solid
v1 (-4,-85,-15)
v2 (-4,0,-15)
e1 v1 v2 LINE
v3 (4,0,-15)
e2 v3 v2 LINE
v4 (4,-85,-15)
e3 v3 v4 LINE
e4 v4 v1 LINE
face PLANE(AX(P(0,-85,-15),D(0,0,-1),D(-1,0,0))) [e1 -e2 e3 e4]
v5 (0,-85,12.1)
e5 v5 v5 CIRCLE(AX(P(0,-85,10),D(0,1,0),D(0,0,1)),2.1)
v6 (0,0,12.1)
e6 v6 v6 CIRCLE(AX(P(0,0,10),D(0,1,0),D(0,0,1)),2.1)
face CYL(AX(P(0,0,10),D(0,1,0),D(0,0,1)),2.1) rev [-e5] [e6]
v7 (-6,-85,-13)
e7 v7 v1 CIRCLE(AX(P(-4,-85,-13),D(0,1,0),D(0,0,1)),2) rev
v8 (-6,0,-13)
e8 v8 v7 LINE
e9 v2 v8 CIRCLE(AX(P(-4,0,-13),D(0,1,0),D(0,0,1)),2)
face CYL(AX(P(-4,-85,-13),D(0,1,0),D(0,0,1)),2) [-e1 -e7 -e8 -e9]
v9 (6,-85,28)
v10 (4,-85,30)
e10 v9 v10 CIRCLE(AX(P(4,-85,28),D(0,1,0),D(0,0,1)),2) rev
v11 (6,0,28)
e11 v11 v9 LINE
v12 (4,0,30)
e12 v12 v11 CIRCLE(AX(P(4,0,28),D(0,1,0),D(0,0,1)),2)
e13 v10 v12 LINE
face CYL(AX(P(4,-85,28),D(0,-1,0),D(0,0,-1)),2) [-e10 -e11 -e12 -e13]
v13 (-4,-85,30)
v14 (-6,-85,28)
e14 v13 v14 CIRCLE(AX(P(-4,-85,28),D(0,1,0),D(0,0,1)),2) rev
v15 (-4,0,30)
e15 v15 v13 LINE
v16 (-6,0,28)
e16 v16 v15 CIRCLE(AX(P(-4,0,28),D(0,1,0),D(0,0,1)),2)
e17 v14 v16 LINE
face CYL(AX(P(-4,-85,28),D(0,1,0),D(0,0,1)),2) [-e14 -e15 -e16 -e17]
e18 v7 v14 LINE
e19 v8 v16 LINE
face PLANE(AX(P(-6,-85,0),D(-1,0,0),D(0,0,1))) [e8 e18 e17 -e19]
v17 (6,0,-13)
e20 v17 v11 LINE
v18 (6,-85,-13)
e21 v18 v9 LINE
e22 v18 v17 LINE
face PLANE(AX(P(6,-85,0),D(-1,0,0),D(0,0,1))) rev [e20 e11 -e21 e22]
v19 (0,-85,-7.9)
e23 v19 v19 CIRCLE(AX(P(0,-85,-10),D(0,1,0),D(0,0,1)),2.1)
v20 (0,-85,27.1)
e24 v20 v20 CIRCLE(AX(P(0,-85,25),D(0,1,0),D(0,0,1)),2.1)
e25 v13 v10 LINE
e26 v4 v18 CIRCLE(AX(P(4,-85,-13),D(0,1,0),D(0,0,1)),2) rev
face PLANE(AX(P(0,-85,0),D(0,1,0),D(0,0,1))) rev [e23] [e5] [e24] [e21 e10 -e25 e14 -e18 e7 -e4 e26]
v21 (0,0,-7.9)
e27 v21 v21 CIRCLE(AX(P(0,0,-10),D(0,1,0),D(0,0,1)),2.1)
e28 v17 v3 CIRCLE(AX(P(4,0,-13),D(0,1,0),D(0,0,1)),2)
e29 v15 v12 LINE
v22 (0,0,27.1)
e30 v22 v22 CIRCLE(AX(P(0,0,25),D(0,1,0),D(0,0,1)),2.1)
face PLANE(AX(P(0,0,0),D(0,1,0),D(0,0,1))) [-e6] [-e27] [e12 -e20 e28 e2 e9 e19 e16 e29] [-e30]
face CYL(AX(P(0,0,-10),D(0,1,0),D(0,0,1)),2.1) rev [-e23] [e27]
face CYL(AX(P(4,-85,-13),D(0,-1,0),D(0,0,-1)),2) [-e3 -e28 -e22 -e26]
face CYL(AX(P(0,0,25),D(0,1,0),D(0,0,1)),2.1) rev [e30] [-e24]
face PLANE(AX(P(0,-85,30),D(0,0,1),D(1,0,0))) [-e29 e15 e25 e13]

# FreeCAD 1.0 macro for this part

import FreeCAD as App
import Part
import Sketcher
from FreeCAD import Vector
Q = App.Units.Quantity


def edges_at(feature, points):
    """Names of the edges that pass closest to the given points."""
    edges = feature.Shape.Edges
    near = lambda p: min(range(len(edges)), key=lambda i: edges[i].distToShape(Part.Vertex(*p))[0])
    return sorted({f"Edge{near(p) + 1}" for p in points})

doc = App.newDocument("Part")
params = doc.addObject("Spreadsheet::Sheet", "Params")
for row, (alias, value) in enumerate([
    ("sketch1_width", "12 mm"),
    ("sketch1_height", "45 mm"),
    ("pad1_length", "85 mm"),
    ("sketch2_diameter", "4.2 mm"),
    ("hole_diameter", "4.2 mm"),
    ("fillet_radius", "2 mm"),
], start=1):
    params.set(f"A{row}", alias)
    params.set(f"B{row}", "=" + value)
    params.setAlias(f"B{row}", alias)

body = doc.addObject("PartDesign::Body", "Body")

# Sketch on XZ plane
sketch1 = doc.addObject("Sketcher::SketchObject", "Sketch")
body.addObject(sketch1)
sketch1.AttachmentSupport = (doc.XZ_Plane, [""])
sketch1.MapMode = "FlatFace"
sketch1.addGeometry(Part.LineSegment(Vector(-6, -15, 0), Vector(-6, 30, 0)), False)
sketch1.addGeometry(Part.LineSegment(Vector(-6, 30, 0), Vector(6, 30, 0)), False)
sketch1.addGeometry(Part.LineSegment(Vector(6, 30, 0), Vector(6, -15, 0)), False)
sketch1.addGeometry(Part.LineSegment(Vector(6, -15, 0), Vector(-6, -15, 0)), False)
sketch1.addConstraint(Sketcher.Constraint("Coincident", 0, 2, 1, 1))
sketch1.addConstraint(Sketcher.Constraint("Coincident", 1, 2, 2, 1))
sketch1.addConstraint(Sketcher.Constraint("Coincident", 2, 2, 3, 1))
sketch1.addConstraint(Sketcher.Constraint("Coincident", 3, 2, 0, 1))
sketch1.addConstraint(Sketcher.Constraint("Vertical", 0))
sketch1.addConstraint(Sketcher.Constraint("Horizontal", 1))
sketch1.addConstraint(Sketcher.Constraint("Vertical", 2))
sketch1.addConstraint(Sketcher.Constraint("Horizontal", 3))
sketch1.addConstraint(Sketcher.Constraint("DistanceX", 1, 1, 1, 2, Q("12 mm")))
sketch1.addConstraint(Sketcher.Constraint("DistanceY", 0, 1, 0, 2, Q("45 mm")))
sketch1.addConstraint(Sketcher.Constraint("DistanceX", 0, 2, -1, 1, Q("6 mm")))
sketch1.addConstraint(Sketcher.Constraint("DistanceY", -1, 1, 0, 2, Q("30 mm")))
sketch1.setExpression("Constraints[8]", "Params.sketch1_width")
sketch1.setExpression("Constraints[9]", "Params.sketch1_height")
pad1 = doc.addObject("PartDesign::Pad", "Pad")
body.addObject(pad1)
pad1.Profile = sketch1
pad1.setExpression("Length", "Params.pad1_length")

# Sketch on XZ plane
sketch2 = doc.addObject("Sketcher::SketchObject", "Sketch001")
body.addObject(sketch2)
sketch2.AttachmentSupport = (doc.XZ_Plane, [""])
sketch2.MapMode = "FlatFace"
sketch2.addGeometry(Part.Circle(Vector(0, -10, 0), Vector(0, 0, 1), 2.1), False)
sketch2.addGeometry(Part.Circle(Vector(0, 10, 0), Vector(0, 0, 1), 2.1), False)
sketch2.addGeometry(Part.Circle(Vector(0, 25, 0), Vector(0, 0, 1), 2.1), False)
sketch2.addConstraint(Sketcher.Constraint("Equal", 0, 1))
sketch2.addConstraint(Sketcher.Constraint("Equal", 1, 2))
sketch2.addConstraint(Sketcher.Constraint("Symmetric", 0, 3, 1, 3, -1, 1))
sketch2.addConstraint(Sketcher.Constraint("PointOnObject", 0, 3, -2))
sketch2.addConstraint(Sketcher.Constraint("PointOnObject", 2, 3, -2))
sketch2.addConstraint(Sketcher.Constraint("Diameter", 0, Q("4.2 mm")))
sketch2.addConstraint(Sketcher.Constraint("DistanceY", 0, 3, -1, 1, Q("10 mm")))
sketch2.addConstraint(Sketcher.Constraint("DistanceY", -1, 1, 2, 3, Q("25 mm")))
sketch2.setExpression("Constraints[5]", "Params.sketch2_diameter")
doc.recompute()
hole = doc.addObject("PartDesign::Hole", "Hole")
body.addObject(hole)
hole.Profile = sketch2
hole.ThreadType = "None"
hole.setExpression("Diameter", "Params.hole_diameter")
hole.DepthType = "ThroughAll"
hole.Reversed = True
doc.recompute()

fillet = doc.addObject("PartDesign::Fillet", "Fillet")
body.addObject(fillet)
fillet.Base = (hole, edges_at(hole, [
    (6, -42.5, 30),
    (-6, -42.5, 30),
    (-6, -42.5, -15),
    (6, -42.5, -15),
]))
fillet.setExpression("Radius", "Params.fillet_radius")

doc.recompute()
